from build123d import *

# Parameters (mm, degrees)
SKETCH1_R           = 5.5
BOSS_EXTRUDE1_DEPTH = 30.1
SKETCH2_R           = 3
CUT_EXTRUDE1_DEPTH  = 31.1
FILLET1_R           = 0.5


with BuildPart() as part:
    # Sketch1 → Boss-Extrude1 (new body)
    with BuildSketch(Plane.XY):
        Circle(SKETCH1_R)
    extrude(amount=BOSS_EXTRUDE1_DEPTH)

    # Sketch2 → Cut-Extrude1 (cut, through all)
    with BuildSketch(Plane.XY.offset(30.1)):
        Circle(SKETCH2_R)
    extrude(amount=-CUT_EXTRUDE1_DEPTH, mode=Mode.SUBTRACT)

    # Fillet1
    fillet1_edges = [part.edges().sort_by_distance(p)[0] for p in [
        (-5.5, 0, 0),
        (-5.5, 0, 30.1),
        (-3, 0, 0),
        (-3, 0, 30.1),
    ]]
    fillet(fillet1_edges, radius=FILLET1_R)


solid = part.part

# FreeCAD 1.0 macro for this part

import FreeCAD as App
import Part
import Sketcher
Q = App.Units.Quantity


def edges_at(feature, points):
    """Names of the edges that pass closest to the given points."""
    edges = feature.Shape.Edges
    near = lambda p: min(range(len(edges)), key=lambda i: edges[i].distToShape(Part.Vertex(*p))[0])
    return sorted({f"Edge{near(p) + 1}" for p in points})

doc = App.newDocument("Part")
body = doc.addObject("PartDesign::Body", "Body")

# Sketch on XY plane
sketch1 = body.newObject("Sketcher::SketchObject", "Sketch")
sketch1.AttachmentSupport = (doc.getObject("XY_Plane"), [""])
sketch1.MapMode = "FlatFace"
sketch1.addGeometry(Part.Circle(App.Vector(0, 0, 0), App.Vector(0, 0, 1), 5.5), False)
sketch1.addConstraint([
    Sketcher.Constraint("Coincident", 0, 3, -1, 1),
    Sketcher.Constraint("Diameter", 0, Q("11 mm")),
])
pad1 = body.newObject("PartDesign::Pad", "Pad")
pad1.Profile = sketch1
pad1.Length = 30.1

# Sketch on XY plane
sketch2 = body.newObject("Sketcher::SketchObject", "Sketch001")
sketch2.AttachmentSupport = (doc.getObject("XY_Plane"), [""])
sketch2.MapMode = "FlatFace"
sketch2.AttachmentOffset = App.Placement(App.Vector(0, 0, 30.1), App.Rotation())
sketch2.addGeometry(Part.Circle(App.Vector(0, 0, 0), App.Vector(0, 0, 1), 3), False)
sketch2.addConstraint([
    Sketcher.Constraint("Coincident", 0, 3, -1, 1),
    Sketcher.Constraint("Diameter", 0, Q("6 mm")),
])
pocket1 = body.newObject("PartDesign::Pocket", "Pocket")
pocket1.Profile = sketch2
pocket1.Type = "ThroughAll"
doc.recompute()

fillet = body.newObject("PartDesign::Fillet", "Fillet")
fillet.Base = (pocket1, edges_at(pocket1, [
    (-5.5, 0, 0),
    (-5.5, 0, 30.1),
    (-3, 0, 0),
    (-3, 0, 30.1),
]))
fillet.Radius = 0.5

doc.recompute()
